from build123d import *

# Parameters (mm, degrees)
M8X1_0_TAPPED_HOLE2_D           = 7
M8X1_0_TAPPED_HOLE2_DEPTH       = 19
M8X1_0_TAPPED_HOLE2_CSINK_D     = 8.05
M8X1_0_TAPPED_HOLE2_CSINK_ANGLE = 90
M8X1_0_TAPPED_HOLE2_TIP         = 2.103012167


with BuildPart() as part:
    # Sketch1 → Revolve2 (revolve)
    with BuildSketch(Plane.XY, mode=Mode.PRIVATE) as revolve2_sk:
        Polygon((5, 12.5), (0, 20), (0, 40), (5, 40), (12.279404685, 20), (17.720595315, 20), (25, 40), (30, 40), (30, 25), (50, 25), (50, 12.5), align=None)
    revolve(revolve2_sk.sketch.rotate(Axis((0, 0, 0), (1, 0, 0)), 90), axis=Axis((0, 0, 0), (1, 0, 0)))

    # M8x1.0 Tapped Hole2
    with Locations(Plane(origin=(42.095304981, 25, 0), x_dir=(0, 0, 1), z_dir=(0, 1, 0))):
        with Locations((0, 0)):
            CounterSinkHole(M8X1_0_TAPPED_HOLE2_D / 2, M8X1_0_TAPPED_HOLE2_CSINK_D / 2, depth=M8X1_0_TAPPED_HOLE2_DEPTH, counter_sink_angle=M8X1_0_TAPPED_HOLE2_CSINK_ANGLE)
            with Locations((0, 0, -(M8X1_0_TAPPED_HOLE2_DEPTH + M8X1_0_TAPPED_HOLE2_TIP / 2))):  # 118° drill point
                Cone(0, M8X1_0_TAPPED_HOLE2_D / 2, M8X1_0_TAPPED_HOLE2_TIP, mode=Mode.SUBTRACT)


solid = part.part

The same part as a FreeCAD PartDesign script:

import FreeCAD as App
import Part
import Sketcher
Q = App.Units.Quantity

doc = App.newDocument("Part")
body = doc.addObject("PartDesign::Body", "Body")

# Sketch on XY plane
sketch1 = body.newObject("Sketcher::SketchObject", "Sketch")
sketch1.AttachmentSupport = (doc.getObject("XY_Plane"), [""])
sketch1.MapMode = "FlatFace"
sketch1.addGeometry(Part.LineSegment(App.Vector(0, 20, 0), App.Vector(5, 12, 0)), False)
sketch1.addGeometry(Part.LineSegment(App.Vector(5, 12, 0), App.Vector(50, 12, 0)), False)
sketch1.addGeometry(Part.LineSegment(App.Vector(50, 12, 0), App.Vector(50, 25, 0)), False)
sketch1.addGeometry(Part.LineSegment(App.Vector(50, 25, 0), App.Vector(30, 25, 0)), False)
sketch1.addGeometry(Part.LineSegment(App.Vector(30, 25, 0), App.Vector(30, 40, 0)), False)
sketch1.addGeometry(Part.LineSegment(App.Vector(30, 40, 0), App.Vector(25, 40, 0)), False)
sketch1.addGeometry(Part.LineSegment(App.Vector(25, 40, 0), App.Vector(18, 20, 0)), False)
sketch1.addGeometry(Part.LineSegment(App.Vector(18, 20, 0), App.Vector(12, 20, 0)), False)
sketch1.addGeometry(Part.LineSegment(App.Vector(12, 20, 0), App.Vector(5, 40, 0)), False)
sketch1.addGeometry(Part.LineSegment(App.Vector(5, 40, 0), App.Vector(0, 40, 0)), False)
sketch1.addGeometry(Part.LineSegment(App.Vector(0, 40, 0), App.Vector(0, 20, 0)), False)
sketch1.addConstraint(Sketcher.Constraint("Coincident", 0, 2, 1, 1))
sketch1.addConstraint(Sketcher.Constraint("Coincident", 1, 2, 2, 1))
sketch1.addConstraint(Sketcher.Constraint("Coincident", 2, 2, 3, 1))
sketch1.addConstraint(Sketcher.Constraint("Coincident", 3, 2, 4, 1))
sketch1.addConstraint(Sketcher.Constraint("Coincident", 4, 2, 5, 1))
sketch1.addConstraint(Sketcher.Constraint("Coincident", 5, 2, 6, 1))
sketch1.addConstraint(Sketcher.Constraint("Coincident", 6, 2, 7, 1))
sketch1.addConstraint(Sketcher.Constraint("Coincident", 7, 2, 8, 1))
sketch1.addConstraint(Sketcher.Constraint("Coincident", 8, 2, 9, 1))
sketch1.addConstraint(Sketcher.Constraint("Coincident", 9, 2, 10, 1))
sketch1.addConstraint(Sketcher.Constraint("Coincident", 10, 2, 0, 1))
sketch1.addConstraint(Sketcher.Constraint("Horizontal", 1))
sketch1.addConstraint(Sketcher.Constraint("Vertical", 2))
sketch1.addConstraint(Sketcher.Constraint("Horizontal", 3))
sketch1.addConstraint(Sketcher.Constraint("Vertical", 4))
sketch1.addConstraint(Sketcher.Constraint("Horizontal", 5))
sketch1.addConstraint(Sketcher.Constraint("Horizontal", 7))
sketch1.addConstraint(Sketcher.Constraint("Horizontal", 9))
sketch1.addConstraint(Sketcher.Constraint("Vertical", 10))
sketch1.addConstraint(Sketcher.Constraint("PointOnObject", 9, 2, -2))
sketch1.addConstraint(Sketcher.Constraint("Horizontal", 5, 2, 8, 2))
sketch1.addConstraint(Sketcher.Constraint("Horizontal", 7, 2, 10, 2))
sketch1.addConstraint(Sketcher.Constraint("Vertical", 0, 2, 8, 2))
sketch1.addConstraint(Sketcher.Constraint("Equal", 5, 9))
sketch1.addConstraint(Sketcher.Constraint("Equal", 3, 10))
sketch1.addConstraint(Sketcher.Constraint("Equal", 6, 8))
sketch1.addConstraint(Sketcher.Constraint("DistanceX", 1, 1, 1, 2, 45.0))
sketch1.addConstraint(Sketcher.Constraint("DistanceX", 3, 2, 3, 1, 20.0))
sketch1.addConstraint(Sketcher.Constraint("DistanceX", 5, 2, 5, 1, 5.0))
sketch1.addConstraint(Sketcher.Constraint("DistanceY", 4, 1, 4, 2, 15.0))
sketch1.addConstraint(Sketcher.Constraint("Angle", 6, Q("-110 deg")))
sketch1.addConstraint(Sketcher.Constraint("DistanceY", 2, 1, 2, 2, 12.5))
sketch1.addConstraint(Sketcher.Constraint("DistanceY", -1, 1, 2, 2, 25.0))
revolution = body.newObject("PartDesign::Revolution", "Revolution")
revolution.Profile = sketch1
revolution.ReferenceAxis = (sketch1, ["H_Axis"])
revolution.Angle = 360

# Sketch on XZ plane
sketch2 = body.newObject("Sketcher::SketchObject", "Sketch001")
sketch2.AttachmentSupport = (doc.getObject("XZ_Plane"), [""])
sketch2.MapMode = "FlatFace"
sketch2.AttachmentOffset = App.Placement(App.Vector(0, 0, -25), App.Rotation())
sketch2.addGeometry(Part.Circle(App.Vector(42.1, 0, 0), App.Vector(0, 0, 1), 3.5), False)
sketch2.addConstraint(Sketcher.Constraint("PointOnObject", 0, 3, -1))
sketch2.addConstraint(Sketcher.Constraint("Diameter", 0, 7.0))
sketch2.addConstraint(Sketcher.Constraint("DistanceX", -1, 1, 0, 3, 42.095305))
doc.recompute()
hole = body.newObject("PartDesign::Hole", "Hole")
hole.Profile = sketch2
hole.ThreadType = "None"
hole.Diameter = 7
hole.DepthType = "Dimension"
hole.Depth = 19
hole.DrillPoint = "Angled"
hole.DrillPointAngle = 118
hole.HoleCutType = "Countersink"
hole.HoleCutDiameter = 8.05
hole.HoleCutCountersinkAngle = 90
hole.Reversed = True

doc.recompute()
